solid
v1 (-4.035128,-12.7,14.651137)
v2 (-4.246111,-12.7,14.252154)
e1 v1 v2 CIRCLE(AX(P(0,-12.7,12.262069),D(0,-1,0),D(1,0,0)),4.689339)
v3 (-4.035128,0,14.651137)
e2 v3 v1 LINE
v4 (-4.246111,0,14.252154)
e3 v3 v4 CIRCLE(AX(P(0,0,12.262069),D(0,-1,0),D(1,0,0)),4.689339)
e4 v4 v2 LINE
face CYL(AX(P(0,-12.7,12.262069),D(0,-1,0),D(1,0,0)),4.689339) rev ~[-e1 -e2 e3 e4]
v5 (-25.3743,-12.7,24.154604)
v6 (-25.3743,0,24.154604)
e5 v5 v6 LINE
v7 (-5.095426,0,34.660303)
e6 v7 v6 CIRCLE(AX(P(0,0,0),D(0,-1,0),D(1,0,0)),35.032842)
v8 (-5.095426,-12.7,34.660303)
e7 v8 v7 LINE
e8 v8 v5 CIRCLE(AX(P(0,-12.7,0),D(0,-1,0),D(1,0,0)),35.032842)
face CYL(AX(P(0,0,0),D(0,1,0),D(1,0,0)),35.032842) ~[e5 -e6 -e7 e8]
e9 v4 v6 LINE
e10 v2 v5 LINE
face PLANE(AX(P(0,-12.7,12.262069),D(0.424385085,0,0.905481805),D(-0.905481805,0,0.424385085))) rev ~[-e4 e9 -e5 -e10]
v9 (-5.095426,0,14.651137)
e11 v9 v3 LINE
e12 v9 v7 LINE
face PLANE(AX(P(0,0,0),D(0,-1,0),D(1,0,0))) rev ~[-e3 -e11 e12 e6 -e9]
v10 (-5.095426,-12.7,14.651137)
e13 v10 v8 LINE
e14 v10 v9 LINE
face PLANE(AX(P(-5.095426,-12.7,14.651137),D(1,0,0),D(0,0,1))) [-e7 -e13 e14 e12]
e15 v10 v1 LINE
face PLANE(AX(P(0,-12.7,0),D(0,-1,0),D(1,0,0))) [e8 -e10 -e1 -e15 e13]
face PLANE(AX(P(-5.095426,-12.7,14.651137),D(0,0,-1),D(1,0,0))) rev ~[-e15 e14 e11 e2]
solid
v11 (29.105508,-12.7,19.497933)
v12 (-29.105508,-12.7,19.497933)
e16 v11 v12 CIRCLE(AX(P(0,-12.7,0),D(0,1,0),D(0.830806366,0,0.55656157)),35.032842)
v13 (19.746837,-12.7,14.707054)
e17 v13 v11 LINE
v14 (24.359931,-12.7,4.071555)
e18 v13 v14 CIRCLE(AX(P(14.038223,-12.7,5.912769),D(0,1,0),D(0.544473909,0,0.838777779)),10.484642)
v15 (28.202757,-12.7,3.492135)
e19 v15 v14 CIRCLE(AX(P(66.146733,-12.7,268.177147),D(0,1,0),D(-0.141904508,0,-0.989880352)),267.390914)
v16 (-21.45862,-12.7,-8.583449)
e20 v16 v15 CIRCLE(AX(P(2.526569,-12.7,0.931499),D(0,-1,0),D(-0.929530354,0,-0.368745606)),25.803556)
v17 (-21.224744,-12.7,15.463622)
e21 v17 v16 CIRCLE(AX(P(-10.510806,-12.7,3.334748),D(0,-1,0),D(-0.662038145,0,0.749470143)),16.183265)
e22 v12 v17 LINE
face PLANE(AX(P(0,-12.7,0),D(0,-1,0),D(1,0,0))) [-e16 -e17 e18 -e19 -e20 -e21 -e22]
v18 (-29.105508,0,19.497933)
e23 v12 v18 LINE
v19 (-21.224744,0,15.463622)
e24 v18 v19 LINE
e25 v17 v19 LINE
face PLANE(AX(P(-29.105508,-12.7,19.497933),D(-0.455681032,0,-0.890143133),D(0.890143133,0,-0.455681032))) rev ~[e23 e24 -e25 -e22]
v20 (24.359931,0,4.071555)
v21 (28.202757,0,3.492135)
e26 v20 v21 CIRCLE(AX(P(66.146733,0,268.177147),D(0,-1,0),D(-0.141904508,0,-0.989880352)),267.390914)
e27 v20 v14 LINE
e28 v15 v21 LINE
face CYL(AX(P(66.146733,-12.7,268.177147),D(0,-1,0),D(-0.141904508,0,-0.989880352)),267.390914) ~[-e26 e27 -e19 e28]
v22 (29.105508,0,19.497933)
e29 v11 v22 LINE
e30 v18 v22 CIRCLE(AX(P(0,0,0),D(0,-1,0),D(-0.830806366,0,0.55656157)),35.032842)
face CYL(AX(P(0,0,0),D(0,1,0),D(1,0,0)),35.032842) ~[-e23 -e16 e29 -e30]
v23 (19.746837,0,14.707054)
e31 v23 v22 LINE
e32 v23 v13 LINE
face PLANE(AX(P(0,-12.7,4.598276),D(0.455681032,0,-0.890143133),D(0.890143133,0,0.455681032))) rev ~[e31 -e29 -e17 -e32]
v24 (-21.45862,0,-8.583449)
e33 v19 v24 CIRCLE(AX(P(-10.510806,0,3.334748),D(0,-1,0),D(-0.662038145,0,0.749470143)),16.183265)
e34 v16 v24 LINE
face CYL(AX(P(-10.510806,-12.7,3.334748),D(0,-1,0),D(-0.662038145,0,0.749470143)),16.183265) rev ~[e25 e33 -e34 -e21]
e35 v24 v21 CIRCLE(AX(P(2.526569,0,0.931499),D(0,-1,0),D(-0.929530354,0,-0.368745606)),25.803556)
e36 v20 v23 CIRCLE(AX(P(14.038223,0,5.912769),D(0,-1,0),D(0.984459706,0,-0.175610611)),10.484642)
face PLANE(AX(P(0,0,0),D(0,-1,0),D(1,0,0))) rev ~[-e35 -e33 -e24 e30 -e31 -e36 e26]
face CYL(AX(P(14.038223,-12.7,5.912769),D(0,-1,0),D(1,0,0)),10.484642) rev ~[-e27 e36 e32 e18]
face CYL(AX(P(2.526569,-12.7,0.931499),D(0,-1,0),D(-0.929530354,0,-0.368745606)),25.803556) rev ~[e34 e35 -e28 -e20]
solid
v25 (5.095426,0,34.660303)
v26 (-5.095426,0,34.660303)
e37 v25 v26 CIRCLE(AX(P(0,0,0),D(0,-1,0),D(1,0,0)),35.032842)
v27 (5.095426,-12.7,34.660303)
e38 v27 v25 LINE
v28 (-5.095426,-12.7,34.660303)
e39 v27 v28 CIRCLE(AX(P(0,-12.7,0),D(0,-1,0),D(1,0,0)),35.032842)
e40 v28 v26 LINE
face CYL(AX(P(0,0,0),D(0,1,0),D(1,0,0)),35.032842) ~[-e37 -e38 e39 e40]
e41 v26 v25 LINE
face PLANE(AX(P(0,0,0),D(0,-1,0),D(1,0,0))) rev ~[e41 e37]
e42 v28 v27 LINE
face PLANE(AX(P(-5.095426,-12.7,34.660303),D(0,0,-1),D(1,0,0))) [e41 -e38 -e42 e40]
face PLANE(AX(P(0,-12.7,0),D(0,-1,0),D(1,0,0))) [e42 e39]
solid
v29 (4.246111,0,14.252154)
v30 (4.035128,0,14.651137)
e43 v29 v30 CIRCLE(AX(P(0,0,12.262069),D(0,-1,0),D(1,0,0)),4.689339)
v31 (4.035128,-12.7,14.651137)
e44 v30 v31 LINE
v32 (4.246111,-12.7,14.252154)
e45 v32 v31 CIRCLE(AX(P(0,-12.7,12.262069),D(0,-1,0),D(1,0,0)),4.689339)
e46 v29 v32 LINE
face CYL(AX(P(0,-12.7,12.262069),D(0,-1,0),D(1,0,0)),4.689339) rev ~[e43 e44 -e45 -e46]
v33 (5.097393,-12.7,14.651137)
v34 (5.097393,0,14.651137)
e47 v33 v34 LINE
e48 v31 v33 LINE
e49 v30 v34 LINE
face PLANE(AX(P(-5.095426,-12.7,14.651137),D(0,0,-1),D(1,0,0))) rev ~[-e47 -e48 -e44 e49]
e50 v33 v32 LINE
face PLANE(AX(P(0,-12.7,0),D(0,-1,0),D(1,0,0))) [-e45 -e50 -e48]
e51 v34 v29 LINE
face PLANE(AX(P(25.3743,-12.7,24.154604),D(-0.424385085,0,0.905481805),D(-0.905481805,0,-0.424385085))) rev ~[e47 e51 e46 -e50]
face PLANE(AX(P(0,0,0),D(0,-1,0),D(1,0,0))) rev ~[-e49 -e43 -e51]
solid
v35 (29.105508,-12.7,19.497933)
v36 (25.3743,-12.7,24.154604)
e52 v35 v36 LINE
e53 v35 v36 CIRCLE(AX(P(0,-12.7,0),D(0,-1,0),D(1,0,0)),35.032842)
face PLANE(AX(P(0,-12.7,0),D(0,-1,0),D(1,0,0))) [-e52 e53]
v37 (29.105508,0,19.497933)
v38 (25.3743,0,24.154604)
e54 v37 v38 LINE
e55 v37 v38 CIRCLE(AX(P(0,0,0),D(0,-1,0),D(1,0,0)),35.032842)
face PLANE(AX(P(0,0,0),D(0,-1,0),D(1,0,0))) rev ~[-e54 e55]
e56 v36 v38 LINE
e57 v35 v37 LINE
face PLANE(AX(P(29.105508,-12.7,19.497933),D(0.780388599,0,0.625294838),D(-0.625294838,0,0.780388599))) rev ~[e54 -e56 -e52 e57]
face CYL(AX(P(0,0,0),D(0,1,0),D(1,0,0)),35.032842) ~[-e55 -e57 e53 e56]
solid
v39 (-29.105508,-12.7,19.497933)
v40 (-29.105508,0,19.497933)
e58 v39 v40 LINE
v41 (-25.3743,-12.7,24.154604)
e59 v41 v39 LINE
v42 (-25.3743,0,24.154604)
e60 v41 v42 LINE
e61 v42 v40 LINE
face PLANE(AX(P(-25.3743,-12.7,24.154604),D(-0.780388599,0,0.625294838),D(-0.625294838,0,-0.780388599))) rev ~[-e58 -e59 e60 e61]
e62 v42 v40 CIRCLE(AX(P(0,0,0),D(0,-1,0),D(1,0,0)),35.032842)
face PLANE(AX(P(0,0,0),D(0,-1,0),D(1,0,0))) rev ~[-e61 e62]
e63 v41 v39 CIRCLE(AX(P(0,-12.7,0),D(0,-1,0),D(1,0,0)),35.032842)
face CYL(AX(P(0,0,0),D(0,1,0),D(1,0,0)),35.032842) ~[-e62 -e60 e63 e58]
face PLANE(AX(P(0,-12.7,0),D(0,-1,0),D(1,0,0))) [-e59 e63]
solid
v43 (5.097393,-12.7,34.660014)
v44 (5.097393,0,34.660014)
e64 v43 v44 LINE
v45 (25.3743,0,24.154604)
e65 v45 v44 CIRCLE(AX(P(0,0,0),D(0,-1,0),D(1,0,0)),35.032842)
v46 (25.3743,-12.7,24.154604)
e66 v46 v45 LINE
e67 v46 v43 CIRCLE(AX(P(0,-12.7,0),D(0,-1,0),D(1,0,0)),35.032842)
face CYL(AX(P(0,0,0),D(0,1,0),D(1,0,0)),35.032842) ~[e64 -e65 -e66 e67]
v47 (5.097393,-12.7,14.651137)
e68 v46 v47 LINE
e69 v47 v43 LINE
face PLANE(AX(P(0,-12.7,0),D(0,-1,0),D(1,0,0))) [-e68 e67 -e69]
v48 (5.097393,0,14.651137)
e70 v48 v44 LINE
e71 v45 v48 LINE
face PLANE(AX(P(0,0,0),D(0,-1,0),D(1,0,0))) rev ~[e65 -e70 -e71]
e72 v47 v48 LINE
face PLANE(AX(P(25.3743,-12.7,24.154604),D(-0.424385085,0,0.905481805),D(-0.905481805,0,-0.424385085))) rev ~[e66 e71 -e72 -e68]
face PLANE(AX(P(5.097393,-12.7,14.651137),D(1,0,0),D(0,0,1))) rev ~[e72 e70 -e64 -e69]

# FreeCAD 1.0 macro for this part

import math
import FreeCAD as App
import Part
import Sketcher
from FreeCAD import Vector

doc = App.newDocument("Part")
params = doc.addObject("Spreadsheet::Sheet", "Params")
for row, (alias, value) in enumerate([
    ("pad1_length", "0.5 in"),
    ("pocket1_length", "1 in"),
    ("pocket2_length", "1 in"),
    ("pocket3_length", "1 in"),
    ("pocket4_length", "1 in"),
    ("pocket5_length", "1 in"),
    ("pocket6_length", "1 in"),
], start=1):
    params.set(f"A{row}", alias)
    params.set(f"B{row}", "=" + value)
    params.setAlias(f"B{row}", alias)

body = doc.addObject("PartDesign::Body", "Body")
body.AllowCompound = True

# Sketch on XZ plane
sketch1 = body.newObject("Sketcher::SketchObject", "Sketch")
sketch1.AttachmentSupport = (doc.getObject("XZ_Plane"), [""])
sketch1.MapMode = "FlatFace"
sketch1.addGeometry(Part.Circle(Vector(0, 0, 0), Vector(0, 0, 1), 35.032842), False)
sketch1.addConstraint(Sketcher.Constraint("Coincident", 0, 3, -1, 1))
sketch1.addConstraint(Sketcher.Constraint("Diameter", 0, 70.065683))
pad1 = body.newObject("PartDesign::Pad", "Pad")
pad1.Profile = sketch1
pad1.setExpression("Length", "Params.pad1_length")

# Sketch on XZ plane
sketch2 = body.newObject("Sketcher::SketchObject", "Sketch001")
sketch2.AttachmentSupport = (doc.getObject("XZ_Plane"), [""])
sketch2.MapMode = "FlatFace"
sketch2.AttachmentOffset = App.Placement(Vector(0, 0, 0.5 * 25.4), App.Rotation())
sketch2.addGeometry(Part.LineSegment(Vector(0, 12.262069, 0), Vector(-25.3743, 24.154604, 0)), False)
sketch2.addGeometry(Part.LineSegment(Vector(-25.3743, 24.154604, 0), Vector(-29.105508, 19.497933, 0)), False)
sketch2.addGeometry(Part.LineSegment(Vector(-29.105508, 19.497933, 0), Vector(0, 4.598276, 0)), False)
sketch2.addGeometry(Part.LineSegment(Vector(0, 4.598276, 0), Vector(29.105508, 19.497933, 0)), False)
sketch2.addGeometry(Part.LineSegment(Vector(29.105508, 19.497933, 0), Vector(25.3743, 24.154604, 0)), False)
sketch2.addGeometry(Part.LineSegment(Vector(25.3743, 24.154604, 0), Vector(0, 12.262069, 0)), False)
sketch2.addConstraint(Sketcher.Constraint("Coincident", 0, 2, 1, 1))
sketch2.addConstraint(Sketcher.Constraint("Coincident", 1, 2, 2, 1))
sketch2.addConstraint(Sketcher.Constraint("Coincident", 2, 2, 3, 1))
sketch2.addConstraint(Sketcher.Constraint("Coincident", 3, 2, 4, 1))
sketch2.addConstraint(Sketcher.Constraint("Coincident", 4, 2, 5, 1))
sketch2.addConstraint(Sketcher.Constraint("Coincident", 5, 2, 0, 1))
sketch2.addConstraint(Sketcher.Constraint("Symmetric", 1, 2, 3, 2, -2))
sketch2.addConstraint(Sketcher.Constraint("Symmetric", 0, 2, 4, 2, -2))
sketch2.addConstraint(Sketcher.Constraint("PointOnObject", 2, 2, -2))
sketch2.addConstraint(Sketcher.Constraint("PointOnObject", 5, 2, -2))
sketch2.addConstraint(Sketcher.Constraint("DistanceX", 0, 2, -1, 1, 25.3743))
sketch2.addConstraint(Sketcher.Constraint("Distance", 0, 28.022981))
sketch2.addConstraint(Sketcher.Constraint("Distance", 2, 32.697559))
sketch2.addConstraint(Sketcher.Constraint("DistanceY", -1, 1, 5, 2, 12.262069))
sketch2.addConstraint(Sketcher.Constraint("DistanceY", 1, 2, 0, 2, 4.656671))
sketch2.addConstraint(Sketcher.Constraint("DistanceY", 2, 2, 0, 2, 19.556328))
pocket1 = body.newObject("PartDesign::Pocket", "Pocket")
pocket1.Profile = sketch2
pocket1.setExpression("Length", "Params.pocket1_length")

# Sketch on XZ plane
sketch3 = body.newObject("Sketcher::SketchObject", "Sketch002")
sketch3.AttachmentSupport = (doc.getObject("XZ_Plane"), [""])
sketch3.MapMode = "FlatFace"
sketch3.AttachmentOffset = App.Placement(Vector(0, 0, 0.5 * 25.4), App.Rotation())
sketch3.addGeometry(Part.Circle(Vector(0, -6.437587, 0), Vector(0, 0, 1), 16.590653), False)
sketch3.addConstraint(Sketcher.Constraint("PointOnObject", 0, 3, -2))
sketch3.addConstraint(Sketcher.Constraint("Diameter", 0, 33.181306))
sketch3.addConstraint(Sketcher.Constraint("DistanceY", 0, 3, -1, 1, 6.437587))
pocket2 = body.newObject("PartDesign::Pocket", "Pocket001")
pocket2.Profile = sketch3
pocket2.setExpression("Length", "Params.pocket2_length")

# Sketch on XZ plane
sketch4 = body.newObject("Sketcher::SketchObject", "Sketch003")
sketch4.AttachmentSupport = (doc.getObject("XZ_Plane"), [""])
sketch4.MapMode = "FlatFace"
sketch4.AttachmentOffset = App.Placement(Vector(0, 0, 0.5 * 25.4), App.Rotation())
sketch4.addGeometry(Part.ArcOfCircle(Part.Circle(Vector(66.146733, 268.177147, 0), Vector(0, 0, 1), 267.390914), math.radians(-109.071971), math.radians(-98.158067)), False)
sketch4.addGeometry(Part.ArcOfCircle(Part.Circle(Vector(-10.510806, 3.334748, 0), Vector(0, 0, 1), 16.183265), math.radians(131.455499), math.radians(227.430047)), False)
sketch4.addGeometry(Part.ArcOfCircle(Part.Circle(Vector(2.526569, 0.931499, 0), Vector(0, 0, 1), 25.803556), math.radians(-158.361724), math.radians(5.695165)), False)
sketch4.addConstraint(Sketcher.Constraint("Coincident", 0, 1, 1, 1))
sketch4.addConstraint(Sketcher.Constraint("Coincident", 1, 2, 2, 1))
sketch4.addConstraint(Sketcher.Constraint("Coincident", 2, 2, 0, 2))
sketch4.addConstraint(Sketcher.Constraint("Radius", 0, 267.390914))
sketch4.addConstraint(Sketcher.Constraint("Radius", 1, 16.183265))
sketch4.addConstraint(Sketcher.Constraint("Radius", 2, 25.803556))
sketch4.addConstraint(Sketcher.Constraint("DistanceY", -1, 1, 2, 3, 0.931499))
sketch4.addConstraint(Sketcher.Constraint("DistanceY", 1, 3, 0, 3, 264.842399))
sketch4.addConstraint(Sketcher.Constraint("DistanceX", 0, 1, 2, 2, 49.427502))
sketch4.addConstraint(Sketcher.Constraint("DistanceY", -1, 1, 1, 3, 3.334748))
sketch4.addConstraint(Sketcher.Constraint("DistanceX", -1, 1, 2, 3, 2.526569))
sketch4.addConstraint(Sketcher.Constraint("DistanceX", 1, 2, -1, 1, 21.45862))
pocket3 = body.newObject("PartDesign::Pocket", "Pocket002")
pocket3.Profile = sketch4
pocket3.setExpression("Length", "Params.pocket3_length")

# Sketch on XZ plane
sketch5 = body.newObject("Sketcher::SketchObject", "Sketch004")
sketch5.AttachmentSupport = (doc.getObject("XZ_Plane"), [""])
sketch5.MapMode = "FlatFace"
sketch5.AttachmentOffset = App.Placement(Vector(0, 0, 0.5 * 25.4), App.Rotation())
sketch5.addGeometry(Part.Circle(Vector(14.038223, 5.912769, 0), Vector(0, 0, 1), 10.484642), False)
sketch5.addConstraint(Sketcher.Constraint("Diameter", 0, 20.969284))
sketch5.addConstraint(Sketcher.Constraint("DistanceY", -1, 1, 0, 3, 5.912769))
sketch5.addConstraint(Sketcher.Constraint("DistanceX", -1, 1, 0, 3, 14.038223))
pocket4 = body.newObject("PartDesign::Pocket", "Pocket003")
pocket4.Profile = sketch5
pocket4.setExpression("Length", "Params.pocket4_length")

# Sketch on XZ plane
sketch6 = body.newObject("Sketcher::SketchObject", "Sketch005")
sketch6.AttachmentSupport = (doc.getObject("XZ_Plane"), [""])
sketch6.MapMode = "FlatFace"
sketch6.AttachmentOffset = App.Placement(Vector(0, 0, 0.5 * 25.4), App.Rotation())
sketch6.addGeometry(Part.LineSegment(Vector(-5.095426, 34.660303, 0), Vector(-5.095426, 14.651137, 0)), False)
sketch6.addGeometry(Part.LineSegment(Vector(-5.095426, 14.651137, 0), Vector(5.097393, 14.651137, 0)), False)
sketch6.addGeometry(Part.LineSegment(Vector(5.097393, 14.651137, 0), Vector(5.097393, 34.660303, 0)), False)
sketch6.addGeometry(Part.LineSegment(Vector(5.097393, 34.660303, 0), Vector(-5.095426, 34.660303, 0)), False)
sketch6.addConstraint(Sketcher.Constraint("Coincident", 0, 2, 1, 1))
sketch6.addConstraint(Sketcher.Constraint("Coincident", 1, 2, 2, 1))
sketch6.addConstraint(Sketcher.Constraint("Coincident", 2, 2, 3, 1))
sketch6.addConstraint(Sketcher.Constraint("Coincident", 3, 2, 0, 1))
sketch6.addConstraint(Sketcher.Constraint("Vertical", 0))
sketch6.addConstraint(Sketcher.Constraint("Horizontal", 1))
sketch6.addConstraint(Sketcher.Constraint("Vertical", 2))
sketch6.addConstraint(Sketcher.Constraint("Horizontal", 3))
sketch6.addConstraint(Sketcher.Constraint("DistanceX", 1, 1, 1, 2, 10.192819))
sketch6.addConstraint(Sketcher.Constraint("DistanceY", 0, 2, 0, 1, 20.009167))
sketch6.addConstraint(Sketcher.Constraint("DistanceX", 0, 2, -1, 1, 5.095426))
sketch6.addConstraint(Sketcher.Constraint("DistanceY", -1, 1, 0, 2, 14.651137))
pocket5 = body.newObject("PartDesign::Pocket", "Pocket004")
pocket5.Profile = sketch6
pocket5.setExpression("Length", "Params.pocket5_length")

# Sketch on XZ plane
sketch7 = body.newObject("Sketcher::SketchObject", "Sketch006")
sketch7.AttachmentSupport = (doc.getObject("XZ_Plane"), [""])
sketch7.MapMode = "FlatFace"
sketch7.AttachmentOffset = App.Placement(Vector(0, 0, 0.5 * 25.4), App.Rotation())
sketch7.addGeometry(Part.Circle(Vector(0, 12.262069, 0), Vector(0, 0, 1), 4.689339), False)
sketch7.addConstraint(Sketcher.Constraint("PointOnObject", 0, 3, -2))
sketch7.addConstraint(Sketcher.Constraint("Diameter", 0, 9.378679))
sketch7.addConstraint(Sketcher.Constraint("DistanceY", -1, 1, 0, 3, 12.262069))
pocket6 = body.newObject("PartDesign::Pocket", "Pocket005")
pocket6.Profile = sketch7
pocket6.setExpression("Length", "Params.pocket6_length")

doc.recompute()
